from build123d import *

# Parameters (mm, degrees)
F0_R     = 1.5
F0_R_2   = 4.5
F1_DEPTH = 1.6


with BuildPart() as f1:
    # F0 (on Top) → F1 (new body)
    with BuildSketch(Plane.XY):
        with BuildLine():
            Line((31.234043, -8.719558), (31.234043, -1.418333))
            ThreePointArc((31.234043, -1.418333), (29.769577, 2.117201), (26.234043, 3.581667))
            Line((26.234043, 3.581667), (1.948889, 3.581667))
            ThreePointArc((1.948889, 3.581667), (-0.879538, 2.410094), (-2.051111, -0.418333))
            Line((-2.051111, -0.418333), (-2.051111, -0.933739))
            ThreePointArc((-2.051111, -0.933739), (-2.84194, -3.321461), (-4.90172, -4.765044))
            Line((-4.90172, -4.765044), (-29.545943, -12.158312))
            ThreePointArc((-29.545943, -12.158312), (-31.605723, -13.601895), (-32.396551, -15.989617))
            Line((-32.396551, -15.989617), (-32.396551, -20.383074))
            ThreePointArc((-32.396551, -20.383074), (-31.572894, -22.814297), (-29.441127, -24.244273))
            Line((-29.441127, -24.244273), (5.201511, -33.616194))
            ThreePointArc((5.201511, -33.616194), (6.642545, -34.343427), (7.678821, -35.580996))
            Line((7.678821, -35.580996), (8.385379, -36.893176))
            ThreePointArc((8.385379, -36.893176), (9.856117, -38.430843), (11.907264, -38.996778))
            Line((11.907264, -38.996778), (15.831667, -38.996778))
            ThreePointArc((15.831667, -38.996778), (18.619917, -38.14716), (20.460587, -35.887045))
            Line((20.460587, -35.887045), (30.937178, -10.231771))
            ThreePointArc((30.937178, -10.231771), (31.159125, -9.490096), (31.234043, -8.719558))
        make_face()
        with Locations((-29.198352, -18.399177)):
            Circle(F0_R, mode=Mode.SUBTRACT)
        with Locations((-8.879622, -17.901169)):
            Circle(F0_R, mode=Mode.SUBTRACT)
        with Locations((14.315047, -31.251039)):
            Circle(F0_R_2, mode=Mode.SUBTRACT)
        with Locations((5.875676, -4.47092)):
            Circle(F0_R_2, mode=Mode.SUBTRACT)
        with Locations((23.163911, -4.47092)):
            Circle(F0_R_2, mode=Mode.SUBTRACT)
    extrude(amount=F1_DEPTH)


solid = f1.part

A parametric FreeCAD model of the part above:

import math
import FreeCAD as App
import Part
import Sketcher

V = App.Vector
Q = App.Units.Quantity

doc = App.newDocument("Part")
params = doc.addObject("Spreadsheet::Sheet", "Params")
for row, (alias, value) in enumerate([
    ("sketch1_diameter", "3 mm"),
    ("sketch1_diameter2", "3 mm"),
    ("sketch1_diameter3", "9 mm"),
    ("sketch1_diameter4", "9 mm"),
    ("sketch1_diameter5", "9 mm"),
    ("pad1_length", "1.6 mm"),
], start=1):
    params.set(f"A{row}", alias)
    params.set(f"B{row}", "=" + value)
    params.setAlias(f"B{row}", alias)

body = doc.addObject("PartDesign::Body", "Body")

# Sketch on XY plane
sketch1 = doc.addObject("Sketcher::SketchObject", "Sketch")
body.addObject(sketch1)
sketch1.AttachmentSupport = (doc.XY_Plane, [""])
sketch1.MapMode = "FlatFace"
sketch1.addGeometry([
    Part.LineSegment(V(31.234043, -8.719558, 0), V(31.234043, -1.418333, 0)),  # 0
    Part.ArcOfCircle(Part.Circle(V(26.234043, -1.418333, 0), V(0, 0, 1), 5), math.radians(-0.000004), math.radians(90.000004)),  # 1
    Part.LineSegment(V(26.234043, 3.581667, 0), V(1.948889, 3.581667, 0)),  # 2
    Part.ArcOfCircle(Part.Circle(V(1.948889, -0.418333, 0), V(0, 0, 1), 4), math.radians(90.000006), math.radians(179.999994)),  # 3
    Part.LineSegment(V(-2.051111, -0.418333, 0), V(-2.051111, -0.933739, 0)),  # 4
    Part.ArcOfCircle(Part.Circle(V(-6.051113, -0.933737, 0), V(0, 0, 1), 4.000002), math.radians(-73.300744), math.radians(-0.000024)),  # 5
    Part.LineSegment(V(-4.90172, -4.765044, 0), V(-29.545943, -12.158312, 0)),  # 6
    Part.ArcOfCircle(Part.Circle(V(-28.396552, -15.989617, 0), V(0, 0, 1), 3.999999), math.radians(106.699244), math.radians(180.000007)),  # 7
    Part.LineSegment(V(-32.396551, -15.989617, 0), V(-32.396551, -20.383074, 0)),  # 8
    Part.ArcOfCircle(Part.Circle(V(-28.396552, -20.383074, 0), V(0, 0, 1), 3.999999), math.radians(179.999995), math.radians(254.862058)),  # 9
    Part.LineSegment(V(-29.441127, -24.244273, 0), V(5.201511, -33.616194, 0)),  # 10
    Part.ArcOfCircle(Part.Circle(V(4.156936, -37.477393, 0), V(0, 0, 1), 4), math.radians(28.300726), math.radians(74.862059)),  # 11
    Part.LineSegment(V(7.678821, -35.580996, 0), V(8.385379, -36.893176, 0)),  # 12
    Part.ArcOfCircle(Part.Circle(V(11.907261, -34.996783, 0), V(0, 0, 1), 3.999995), math.radians(-151.69931), math.radians(-89.999957)),  # 13
    Part.LineSegment(V(11.907264, -38.996778, 0), V(15.831667, -38.996778, 0)),  # 14
    Part.ArcOfCircle(Part.Circle(V(15.831669, -33.996779, 0), V(0, 0, 1), 4.999999), math.radians(-90.000023), math.radians(-22.213147)),  # 15
    Part.LineSegment(V(20.460587, -35.887045, 0), V(30.937178, -10.231771, 0)),  # 16
    Part.ArcOfCircle(Part.Circle(V(27.234037, -8.719556, 0), V(0, 0, 1), 4.000006), math.radians(-22.213146), math.radians(-0.000032)),  # 17
    Part.Circle(V(-29.198352, -18.399177, 0), V(0, 0, 1), 1.5),  # 18
    Part.Circle(V(-8.879622, -17.901169, 0), V(0, 0, 1), 1.5),  # 19
    Part.Circle(V(14.315047, -31.251039, 0), V(0, 0, 1), 4.5),  # 20
    Part.Circle(V(5.875676, -4.47092, 0), V(0, 0, 1), 4.5),  # 21
    Part.Circle(V(23.163911, -4.47092, 0), V(0, 0, 1), 4.5),  # 22
], False)
sketch1.addConstraint([
    Sketcher.Constraint("Coincident", 0, 2, 1, 1),
    Sketcher.Constraint("Coincident", 1, 2, 2, 1),
    Sketcher.Constraint("Coincident", 2, 2, 3, 1),
    Sketcher.Constraint("Coincident", 3, 2, 4, 1),
    Sketcher.Constraint("Coincident", 4, 2, 5, 2),
    Sketcher.Constraint("Coincident", 5, 1, 6, 1),
    Sketcher.Constraint("Coincident", 6, 2, 7, 1),
    Sketcher.Constraint("Coincident", 7, 2, 8, 1),
    Sketcher.Constraint("Coincident", 8, 2, 9, 1),
    Sketcher.Constraint("Coincident", 9, 2, 10, 1),
    Sketcher.Constraint("Coincident", 10, 2, 11, 2),
    Sketcher.Constraint("Coincident", 11, 1, 12, 1),
    Sketcher.Constraint("Coincident", 12, 2, 13, 1),
    Sketcher.Constraint("Coincident", 13, 2, 14, 1),
    Sketcher.Constraint("Coincident", 14, 2, 15, 1),
    Sketcher.Constraint("Coincident", 15, 2, 16, 1),
    Sketcher.Constraint("Coincident", 16, 2, 17, 1),
    Sketcher.Constraint("Coincident", 17, 2, 0, 1),
    Sketcher.Constraint("Vertical", 0),
    Sketcher.Constraint("Horizontal", 2),
    Sketcher.Constraint("Vertical", 4),
    Sketcher.Constraint("Vertical", 8),
    Sketcher.Constraint("Horizontal", 14),
    Sketcher.Constraint("Diameter", 18, Q("3 mm")),
    Sketcher.Constraint("Diameter", 19, Q("3 mm")),
    Sketcher.Constraint("Diameter", 20, Q("9 mm")),
    Sketcher.Constraint("Diameter", 21, Q("9 mm")),
    Sketcher.Constraint("Diameter", 22, Q("9 mm")),
    Sketcher.Constraint("Radius", 1, Q("5 mm")),
    Sketcher.Constraint("Radius", 3, Q("4 mm")),
    Sketcher.Constraint("Radius", 5, Q("4.000002 mm")),
    Sketcher.Constraint("Radius", 7, Q("3.999999 mm")),
    Sketcher.Constraint("Radius", 9, Q("3.999999 mm")),
    Sketcher.Constraint("Radius", 11, Q("4 mm")),
    Sketcher.Constraint("Radius", 15, Q("4.999999 mm")),
    Sketcher.Constraint("DistanceY", 0, 2, 3, 3, Q("1 mm")),
    Sketcher.Constraint("DistanceX", 1, 2, 0, 2, Q("5 mm")),
    Sketcher.Constraint("DistanceX", 5, 3, 2, 2, Q("8.000002 mm")),
    Sketcher.Constraint("DistanceY", 3, 2, 2, 2, Q("4 mm")),
    Sketcher.Constraint("Radius", 13, Q("3.999995 mm")),
    Sketcher.Constraint("Radius", 17, Q("4.000006 mm")),
    Sketcher.Constraint("DistanceX", 18, 3, 9, 3, Q("0.8018 mm")),
    Sketcher.Constraint("DistanceY", 9, 2, 9, 3, Q("3.861199 mm")),
    Sketcher.Constraint("DistanceY", 9, 2, 8, 2, Q("3.861199 mm")),
    Sketcher.Constraint("DistanceY", 11, 3, 10, 2, Q("3.861199 mm")),
    Sketcher.Constraint("DistanceY", 11, 1, 10, 2, Q("1.964802 mm")),
    Sketcher.Constraint("DistanceY", 13, 2, 12, 2, Q("2.103602 mm")),
    Sketcher.Constraint("DistanceX", 2, 2, 2, 1, Q("24.285154 mm")),
    Sketcher.Constraint("DistanceX", 14, 1, 14, 2, Q("3.924403 mm")),
    Sketcher.Constraint("DistanceY", 0, 1, 0, 2, Q("7.301225 mm")),
    Sketcher.Constraint("DistanceY", 4, 2, 4, 1, Q("0.515406 mm")),
    Sketcher.Constraint("DistanceY", 8, 2, 8, 1, Q("4.393457 mm")),
    Sketcher.Constraint("DistanceX", -1, 1, 3, 3, Q("1.948889 mm")),
    Sketcher.Constraint("DistanceX", 7, 3, -1, 1, Q("28.396552 mm")),
    Sketcher.Constraint("DistanceX", -1, 1, 13, 3, Q("11.907261 mm")),
    Sketcher.Constraint("DistanceX", -1, 1, 15, 3, Q("15.831669 mm")),
    Sketcher.Constraint("DistanceY", 15, 3, -1, 1, Q("33.996779 mm")),
    Sketcher.Constraint("DistanceY", 19, 3, -1, 1, Q("17.901169 mm")),
    Sketcher.Constraint("DistanceY", 20, 3, -1, 1, Q("31.251039 mm")),
    Sketcher.Constraint("DistanceY", 21, 3, -1, 1, Q("4.47092 mm")),
    Sketcher.Constraint("DistanceX", -1, 1, 22, 3, Q("23.163911 mm")),
    Sketcher.Constraint("DistanceY", 22, 3, -1, 1, Q("4.47092 mm")),
    Sketcher.Constraint("DistanceY", 4, 2, -1, 1, Q("0.933739 mm")),
    Sketcher.Constraint("DistanceX", 5, 1, -1, 1, Q("4.90172 mm")),
    Sketcher.Constraint("DistanceX", -1, 1, 10, 2, Q("5.201511 mm")),
    Sketcher.Constraint("DistanceY", 16, 2, -1, 1, Q("10.231771 mm")),
    Sketcher.Constraint("DistanceY", 7, 3, 5, 3, Q("15.055879 mm")),
    Sketcher.Constraint("DistanceY", 9, 3, 3, 3, Q("19.964741 mm")),
    Sketcher.Constraint("DistanceY", 11, 3, 9, 3, Q("17.094319 mm")),
    Sketcher.Constraint("DistanceY", 17, 3, 5, 3, Q("7.785818 mm")),
    Sketcher.Constraint("DistanceY", 18, 3, 7, 3, Q("2.40956 mm")),
    Sketcher.Constraint("DistanceX", 19, 3, 5, 3, Q("2.828509 mm")),
    Sketcher.Constraint("DistanceY", 19, 3, 5, 3, Q("16.967432 mm")),
    Sketcher.Constraint("DistanceX", 11, 3, 20, 3, Q("10.158111 mm")),
    Sketcher.Constraint("DistanceX", 5, 3, 21, 3, Q("11.926789 mm")),
    Sketcher.Constraint("DistanceX", 6, 2, 7, 3, Q("1.149391 mm")),
    Sketcher.Constraint("DistanceX", 20, 3, 14, 2, Q("1.51662 mm")),
    Sketcher.Constraint("DistanceX", 14, 2, 15, 2, Q("4.62892 mm")),
])
sketch1.setExpression("Constraints[23]", "Params.sketch1_diameter")
sketch1.setExpression("Constraints[24]", "Params.sketch1_diameter2")
sketch1.setExpression("Constraints[25]", "Params.sketch1_diameter3")
sketch1.setExpression("Constraints[26]", "Params.sketch1_diameter4")
sketch1.setExpression("Constraints[27]", "Params.sketch1_diameter5")
pad1 = doc.addObject("PartDesign::Pad", "Pad")
body.addObject(pad1)
pad1.Profile = sketch1
pad1.setExpression("Length", "Params.pad1_length")

doc.recompute()
